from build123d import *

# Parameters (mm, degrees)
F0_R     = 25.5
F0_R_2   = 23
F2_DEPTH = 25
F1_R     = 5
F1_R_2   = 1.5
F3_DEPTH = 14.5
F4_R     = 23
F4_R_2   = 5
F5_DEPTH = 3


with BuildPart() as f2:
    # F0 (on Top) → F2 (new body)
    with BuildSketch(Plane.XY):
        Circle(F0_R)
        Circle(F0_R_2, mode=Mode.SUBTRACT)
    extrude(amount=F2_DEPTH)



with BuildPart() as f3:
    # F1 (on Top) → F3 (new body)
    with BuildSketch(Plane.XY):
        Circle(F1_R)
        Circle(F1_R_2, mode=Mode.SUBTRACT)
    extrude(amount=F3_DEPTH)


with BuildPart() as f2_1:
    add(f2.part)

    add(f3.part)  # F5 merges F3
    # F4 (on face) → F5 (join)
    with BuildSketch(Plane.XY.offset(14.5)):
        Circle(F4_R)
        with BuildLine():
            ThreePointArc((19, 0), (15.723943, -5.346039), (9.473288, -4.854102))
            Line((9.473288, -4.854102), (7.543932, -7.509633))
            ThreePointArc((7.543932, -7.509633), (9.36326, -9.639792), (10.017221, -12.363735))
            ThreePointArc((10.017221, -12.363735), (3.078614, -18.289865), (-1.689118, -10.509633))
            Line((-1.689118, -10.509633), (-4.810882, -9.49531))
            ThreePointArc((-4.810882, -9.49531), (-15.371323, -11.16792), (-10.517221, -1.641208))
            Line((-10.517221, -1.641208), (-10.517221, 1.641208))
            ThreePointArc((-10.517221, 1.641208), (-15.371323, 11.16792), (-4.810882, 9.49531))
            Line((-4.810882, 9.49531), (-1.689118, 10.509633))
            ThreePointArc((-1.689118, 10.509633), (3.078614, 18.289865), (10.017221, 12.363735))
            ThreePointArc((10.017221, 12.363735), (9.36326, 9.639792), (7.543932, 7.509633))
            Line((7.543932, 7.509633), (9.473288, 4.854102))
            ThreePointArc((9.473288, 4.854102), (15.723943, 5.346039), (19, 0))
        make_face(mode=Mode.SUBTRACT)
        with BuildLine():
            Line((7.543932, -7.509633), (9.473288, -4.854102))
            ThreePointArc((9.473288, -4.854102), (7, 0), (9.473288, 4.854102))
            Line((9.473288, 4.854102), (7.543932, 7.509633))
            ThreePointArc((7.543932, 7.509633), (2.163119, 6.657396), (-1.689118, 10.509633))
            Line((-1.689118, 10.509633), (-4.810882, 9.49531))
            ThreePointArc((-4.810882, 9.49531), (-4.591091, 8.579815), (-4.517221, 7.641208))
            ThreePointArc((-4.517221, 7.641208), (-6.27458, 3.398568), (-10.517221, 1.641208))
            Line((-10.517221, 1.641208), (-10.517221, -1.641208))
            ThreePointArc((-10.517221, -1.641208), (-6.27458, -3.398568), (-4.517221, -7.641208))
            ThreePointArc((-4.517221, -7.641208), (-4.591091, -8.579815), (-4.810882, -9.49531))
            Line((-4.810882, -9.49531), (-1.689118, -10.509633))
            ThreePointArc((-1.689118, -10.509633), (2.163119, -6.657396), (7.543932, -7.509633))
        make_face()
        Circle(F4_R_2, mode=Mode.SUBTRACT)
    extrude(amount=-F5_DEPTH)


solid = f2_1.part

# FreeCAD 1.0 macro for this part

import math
import FreeCAD as App
import Part
import Sketcher
Q = App.Units.Quantity

doc = App.newDocument("Part")
params = doc.addObject("Spreadsheet::Sheet", "Params")
for row, (alias, value) in enumerate([
    ("sketch1_diameter", "51 mm"),
    ("sketch1_diameter2", "46 mm"),
    ("pad1_length", "25 mm"),
    ("sketch2_diameter", "10 mm"),
    ("sketch2_diameter2", "3 mm"),
    ("pad2_length", "14.5 mm"),
    ("sketch3_diameter", "46 mm"),
    ("sketch3_diameter2", "10 mm"),
    ("sketch3_radius", "6 mm"),
    ("pad3_length", "3 mm"),
], start=1):
    params.set(f"A{row}", alias)
    params.set(f"B{row}", "=" + value)
    params.setAlias(f"B{row}", alias)

body = doc.addObject("PartDesign::Body", "Body")

# Sketch on XY plane
sketch1 = body.newObject("Sketcher::SketchObject", "Sketch")
sketch1.AttachmentSupport = (doc.getObject("XY_Plane"), [""])
sketch1.MapMode = "FlatFace"
sketch1.addGeometry([
    Part.Circle(App.Vector(0, 0, 0), App.Vector(0, 0, 1), 26),
    Part.Circle(App.Vector(0, 0, 0), App.Vector(0, 0, 1), 23),
], False)
sketch1.addConstraint([
    Sketcher.Constraint("Coincident", 0, 3, -1, 1),
    Sketcher.Constraint("Coincident", 1, 3, -1, 1),
    Sketcher.Constraint("Diameter", 0, Q("51 mm")),
    Sketcher.Constraint("Diameter", 1, Q("46 mm")),
])
sketch1.setExpression("Constraints[2]", "Params.sketch1_diameter")
sketch1.setExpression("Constraints[3]", "Params.sketch1_diameter2")
pad1 = body.newObject("PartDesign::Pad", "Pad")
pad1.Profile = sketch1
pad1.setExpression("Length", "Params.pad1_length")
body2 = doc.addObject("PartDesign::Body", "Body001")

# Sketch on XY plane
sketch2 = body2.newObject("Sketcher::SketchObject", "Sketch001")
sketch2.AttachmentSupport = (doc.getObject("XY_Plane001"), [""])
sketch2.MapMode = "FlatFace"
sketch2.addGeometry([
    Part.Circle(App.Vector(0, 0, 0), App.Vector(0, 0, 1), 5),
    Part.Circle(App.Vector(0, 0, 0), App.Vector(0, 0, 1), 1.5),
], False)
sketch2.addConstraint([
    Sketcher.Constraint("Coincident", 0, 3, -1, 1),
    Sketcher.Constraint("Coincident", 1, 3, -1, 1),
    Sketcher.Constraint("Diameter", 0, Q("10 mm")),
    Sketcher.Constraint("Diameter", 1, Q("3 mm")),
])
sketch2.setExpression("Constraints[2]", "Params.sketch2_diameter")
sketch2.setExpression("Constraints[3]", "Params.sketch2_diameter2")
pad2 = body2.newObject("PartDesign::Pad", "Pad001")
pad2.Profile = sketch2
pad2.setExpression("Length", "Params.pad2_length")
body.AllowCompound = True
doc.recompute()

boolean = body.newObject("PartDesign::Boolean", "Boolean")
boolean.Type = "Fuse"
boolean.addObjects([body2])

# Sketch on XY plane
sketch3 = body.newObject("Sketcher::SketchObject", "Sketch002")
sketch3.AttachmentSupport = (doc.getObject("XY_Plane"), [""])
sketch3.MapMode = "FlatFace"
sketch3.AttachmentOffset = App.Placement(App.Vector(0, 0, 14.5), App.Rotation())
sketch3.addGeometry([
    Part.Circle(App.Vector(0, 0, 0), App.Vector(0, 0, 1), 23),  # 0
    Part.ArcOfCircle(Part.Circle(App.Vector(-10.5, -7.6, 0), App.Vector(0, 0, 1), 6), math.radians(90), math.radians(342)),  # 1
    Part.ArcOfCircle(Part.Circle(App.Vector(-10.5, -7.6, 0), App.Vector(0, 0, 1), 6), math.radians(0), math.radians(90)),  # 2
    Part.ArcOfCircle(Part.Circle(App.Vector(-10.5, -7.6, 0), App.Vector(0, 0, 1), 6), math.radians(-18), math.radians(0)),  # 3
    Part.ArcOfCircle(Part.Circle(App.Vector(4, -12.4, 0), App.Vector(0, 0, 1), 6), math.radians(162), math.radians(360)),  # 4
    Part.ArcOfCircle(Part.Circle(App.Vector(4, -12.4, 0), App.Vector(0, 0, 1), 6), math.radians(54), math.radians(162)),  # 5
    Part.ArcOfCircle(Part.Circle(App.Vector(4, -12.4, 0), App.Vector(0, 0, 1), 6), math.radians(0), math.radians(54)),  # 6
    Part.ArcOfCircle(Part.Circle(App.Vector(-10.5, 7.6, 0), App.Vector(0, 0, 1), 6), math.radians(18), math.radians(270)),  # 7
    Part.ArcOfCircle(Part.Circle(App.Vector(-10.5, 7.6, 0), App.Vector(0, 0, 1), 6), math.radians(0), math.radians(18)),  # 8
    Part.ArcOfCircle(Part.Circle(App.Vector(-10.5, 7.6, 0), App.Vector(0, 0, 1), 6), math.radians(-90), math.radians(0)),  # 9
    Part.Circle(App.Vector(0, 0, 0), App.Vector(0, 0, 1), 5),  # 10
    Part.ArcOfCircle(Part.Circle(App.Vector(13, 0, 0), App.Vector(0, 0, 1), 6), math.radians(0), math.radians(126)),  # 11
    Part.ArcOfCircle(Part.Circle(App.Vector(13, 0, 0), App.Vector(0, 0, 1), 6), math.radians(-126), math.radians(0)),  # 12
    Part.ArcOfCircle(Part.Circle(App.Vector(13, 0, 0), App.Vector(0, 0, 1), 6), math.radians(126), math.radians(234)),  # 13
    Part.ArcOfCircle(Part.Circle(App.Vector(4, 12.4, 0), App.Vector(0, 0, 1), 6), math.radians(-54), math.radians(0)),  # 14
    Part.ArcOfCircle(Part.Circle(App.Vector(4, 12.4, 0), App.Vector(0, 0, 1), 6), math.radians(-162), math.radians(-54)),  # 15
    Part.ArcOfCircle(Part.Circle(App.Vector(4, 12.4, 0), App.Vector(0, 0, 1), 6), math.radians(0), math.radians(198)),  # 16
], False)
sketch3.addConstraint([
    Sketcher.Constraint("Tangent", 1, 1, 2, 2),
    Sketcher.Constraint("Tangent", 2, 1, 3, 2),
    Sketcher.Constraint("Tangent", 3, 1, 1, 2),
    Sketcher.Constraint("Tangent", 4, 1, 5, 2),
    Sketcher.Constraint("Tangent", 5, 1, 6, 2),
    Sketcher.Constraint("Tangent", 6, 1, 4, 2),
    Sketcher.Constraint("Tangent", 7, 1, 8, 2),
    Sketcher.Constraint("Tangent", 8, 1, 9, 2),
    Sketcher.Constraint("Tangent", 9, 1, 7, 2),
    Sketcher.Constraint("Tangent", 11, 1, 12, 2),
    Sketcher.Constraint("Tangent", 12, 1, 13, 2),
    Sketcher.Constraint("Tangent", 13, 1, 11, 2),
    Sketcher.Constraint("Tangent", 14, 1, 15, 2),
    Sketcher.Constraint("Tangent", 15, 1, 16, 2),
    Sketcher.Constraint("Tangent", 16, 1, 14, 2),
    Sketcher.Constraint("Coincident", 0, 3, -1, 1),
    Sketcher.Constraint("Coincident", 10, 3, -1, 1),
    Sketcher.Constraint("Equal", 2, 4),
    Sketcher.Constraint("Equal", 6, 7),
    Sketcher.Constraint("Equal", 9, 11),
    Sketcher.Constraint("Equal", 13, 14),
    Sketcher.Constraint("Symmetric", 1, 3, 7, 3, -1),
    Sketcher.Constraint("Symmetric", 4, 3, 14, 3, -1),
    Sketcher.Constraint("Symmetric", 12, 1, 13, 1, -1),
    Sketcher.Constraint("PointOnObject", 11, 1, -1),
    Sketcher.Constraint("Horizontal", 3, 3, 2, 1),
    Sketcher.Constraint("Horizontal", 5, 3, 6, 1),
    Sketcher.Constraint("Horizontal", 9, 3, 8, 1),
    Sketcher.Constraint("Horizontal", 15, 3, 16, 1),
    Sketcher.Constraint("Vertical", 9, 3, 1, 1),
    Sketcher.Constraint("Vertical", 3, 1, 7, 1),
    Sketcher.Constraint("Vertical", 1, 1, 9, 1),
    Sketcher.Constraint("Vertical", 5, 1, 14, 1),
    Sketcher.Constraint("Vertical", 4, 1, 15, 1),
    Sketcher.Constraint("Diameter", 0, Q("46 mm")),
    Sketcher.Constraint("Diameter", 10, Q("10 mm")),
    Sketcher.Constraint("Radius", 1, Q("6 mm")),
    Sketcher.Constraint("DistanceX", -1, 1, 11, 3, Q("13 mm")),
    Sketcher.Constraint("DistanceY", 3, 1, 2, 1, Q("1.854102 mm")),
    Sketcher.Constraint("DistanceY", 5, 3, 4, 1, Q("1.854102 mm")),
    Sketcher.Constraint("DistanceY", 5, 3, 5, 1, Q("4.854102 mm")),
    Sketcher.Constraint("DistanceY", 12, 1, 11, 3, Q("4.854102 mm")),
    Sketcher.Constraint("DistanceX", 1, 3, -1, 1, Q("10.517221 mm")),
    Sketcher.Constraint("DistanceY", 1, 3, -1, 1, Q("7.641208 mm")),
    Sketcher.Constraint("DistanceX", -1, 1, 4, 3, Q("4.017221 mm")),
    Sketcher.Constraint("DistanceY", 5, 1, 12, 1, Q("2.655531 mm")),
])
sketch3.setExpression("Constraints[34]", "Params.sketch3_diameter")
sketch3.setExpression("Constraints[35]", "Params.sketch3_diameter2")
sketch3.setExpression("Constraints[36]", "Params.sketch3_radius")
pad3 = body.newObject("PartDesign::Pad", "Pad002")
pad3.Profile = sketch3
pad3.setExpression("Length", "Params.pad3_length")
pad3.Reversed = True

doc.recompute()
